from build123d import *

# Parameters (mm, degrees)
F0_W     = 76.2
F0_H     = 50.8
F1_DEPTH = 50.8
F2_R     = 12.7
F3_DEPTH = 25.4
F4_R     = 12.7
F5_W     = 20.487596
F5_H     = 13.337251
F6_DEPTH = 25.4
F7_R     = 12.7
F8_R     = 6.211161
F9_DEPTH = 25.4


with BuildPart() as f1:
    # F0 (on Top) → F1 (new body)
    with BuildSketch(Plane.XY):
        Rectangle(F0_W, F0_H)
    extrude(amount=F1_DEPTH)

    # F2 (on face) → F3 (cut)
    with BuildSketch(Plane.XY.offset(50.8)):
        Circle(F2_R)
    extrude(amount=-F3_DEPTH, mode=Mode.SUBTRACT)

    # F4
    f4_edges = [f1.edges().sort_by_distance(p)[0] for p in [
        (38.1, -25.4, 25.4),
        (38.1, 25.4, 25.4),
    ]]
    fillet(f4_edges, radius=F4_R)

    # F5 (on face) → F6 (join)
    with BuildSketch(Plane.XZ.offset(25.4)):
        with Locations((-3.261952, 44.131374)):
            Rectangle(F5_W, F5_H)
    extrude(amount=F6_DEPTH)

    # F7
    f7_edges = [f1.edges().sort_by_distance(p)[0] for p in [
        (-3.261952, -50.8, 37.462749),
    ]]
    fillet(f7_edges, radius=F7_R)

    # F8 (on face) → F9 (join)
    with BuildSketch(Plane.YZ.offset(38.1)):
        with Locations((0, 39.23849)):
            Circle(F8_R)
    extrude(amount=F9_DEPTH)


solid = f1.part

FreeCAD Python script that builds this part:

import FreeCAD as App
import Part
import Sketcher

V = App.Vector
Q = App.Units.Quantity


def edges_at(feature, points):
    """Names of the edges that pass closest to the given points."""
    edges = feature.Shape.Edges
    near = lambda p: min(range(len(edges)), key=lambda i: edges[i].distToShape(Part.Vertex(*p))[0])
    return sorted({f"Edge{near(p) + 1}" for p in points})

doc = App.newDocument("Part")
params = doc.addObject("Spreadsheet::Sheet", "Params")
for row, (alias, value) in enumerate([
    ("sketch1_width", "3 in"),
    ("sketch1_height", "2 in"),
    ("pad1_length", "2 in"),
    ("sketch2_diameter", "1 in"),
    ("pocket1_length", "1 in"),
    ("fillet_radius", "0.5 in"),
    ("pad2_length", "1 in"),
    ("fillet2_radius", "0.5 in"),
    ("pad3_length", "1 in"),
], start=1):
    params.set(f"A{row}", alias)
    params.set(f"B{row}", "=" + value)
    params.setAlias(f"B{row}", alias)

body = doc.addObject("PartDesign::Body", "Body")

# Sketch on XY plane
sketch1 = body.newObject("Sketcher::SketchObject", "Sketch")
sketch1.AttachmentSupport = (doc.getObject("XY_Plane"), [""])
sketch1.MapMode = "FlatFace"
sketch1.addGeometry([
    Part.LineSegment(V(-38, 25, 0), V(-38, -25, 0)),
    Part.LineSegment(V(-38, -25, 0), V(38, -25, 0)),
    Part.LineSegment(V(38, -25, 0), V(38, 25, 0)),
    Part.LineSegment(V(38, 25, 0), V(-38, 25, 0)),
], False)
sketch1.addConstraint([
    Sketcher.Constraint("Coincident", 0, 2, 1, 1),
    Sketcher.Constraint("Coincident", 1, 2, 2, 1),
    Sketcher.Constraint("Coincident", 2, 2, 3, 1),
    Sketcher.Constraint("Coincident", 3, 2, 0, 1),
    Sketcher.Constraint("Vertical", 0),
    Sketcher.Constraint("Horizontal", 1),
    Sketcher.Constraint("Vertical", 2),
    Sketcher.Constraint("Horizontal", 3),
    Sketcher.Constraint("Symmetric", 0, 2, 2, 2, -1, 1),
    Sketcher.Constraint("DistanceX", 1, 1, 1, 2, Q("3 in")),
    Sketcher.Constraint("DistanceY", 0, 2, 0, 1, Q("2 in")),
])
sketch1.setExpression("Constraints[9]", "Params.sketch1_width")
sketch1.setExpression("Constraints[10]", "Params.sketch1_height")
pad1 = body.newObject("PartDesign::Pad", "Pad")
pad1.Profile = sketch1
pad1.setExpression("Length", "Params.pad1_length")

# Sketch on XY plane
sketch2 = body.newObject("Sketcher::SketchObject", "Sketch001")
sketch2.AttachmentSupport = (doc.getObject("XY_Plane"), [""])
sketch2.MapMode = "FlatFace"
sketch2.AttachmentOffset = App.Placement(V(0, 0, 2 * 25.4), App.Rotation())
sketch2.addGeometry(Part.Circle(V(0, 0, 0), V(0, 0, 1), 13), False)
sketch2.addConstraint([
    Sketcher.Constraint("Coincident", 0, 3, -1, 1),
    Sketcher.Constraint("Diameter", 0, Q("1 in")),
])
sketch2.setExpression("Constraints[1]", "Params.sketch2_diameter")
pocket1 = body.newObject("PartDesign::Pocket", "Pocket")
pocket1.Profile = sketch2
pocket1.setExpression("Length", "Params.pocket1_length")
doc.recompute()

fillet = body.newObject("PartDesign::Fillet", "Fillet")
fillet.Base = (pocket1, edges_at(pocket1, [(38.1, -25.4, 25.4), (38.1, 25.4, 25.4)]))
fillet.setExpression("Radius", "Params.fillet_radius")

# Sketch on XZ plane
sketch3 = body.newObject("Sketcher::SketchObject", "Sketch002")
sketch3.AttachmentSupport = (doc.getObject("XZ_Plane"), [""])
sketch3.MapMode = "FlatFace"
sketch3.AttachmentOffset = App.Placement(V(0, 0, 1 * 25.4), App.Rotation())
sketch3.addGeometry([
    Part.LineSegment(V(-14, 51, 0), V(-14, 37, 0)),
    Part.LineSegment(V(-14, 37, 0), V(7, 37, 0)),
    Part.LineSegment(V(7, 37, 0), V(7, 51, 0)),
    Part.LineSegment(V(7, 51, 0), V(-14, 51, 0)),
], False)
sketch3.addConstraint([
    Sketcher.Constraint("Coincident", 0, 2, 1, 1),
    Sketcher.Constraint("Coincident", 1, 2, 2, 1),
    Sketcher.Constraint("Coincident", 2, 2, 3, 1),
    Sketcher.Constraint("Coincident", 3, 2, 0, 1),
    Sketcher.Constraint("Vertical", 0),
    Sketcher.Constraint("Horizontal", 1),
    Sketcher.Constraint("Vertical", 2),
    Sketcher.Constraint("Horizontal", 3),
    Sketcher.Constraint("DistanceY", -1, 1, 2, 2, Q("2 in")),
    Sketcher.Constraint("DistanceY", 0, 2, 0, 1, 13.337251),
    Sketcher.Constraint("DistanceX", 1, 1, 1, 2, 20.487596),
    Sketcher.Constraint("DistanceX", 0, 2, -1, 1, 13.50575),
])
pad2 = body.newObject("PartDesign::Pad", "Pad001")
pad2.Profile = sketch3
pad2.setExpression("Length", "Params.pad2_length")
doc.recompute()

fillet2 = body.newObject("PartDesign::Fillet", "Fillet001")
fillet2.Base = (pad2, edges_at(pad2, [(-3.262, -50.8, 37.463)]))
fillet2.setExpression("Radius", "Params.fillet2_radius")

# Sketch on YZ plane
sketch4 = body.newObject("Sketcher::SketchObject", "Sketch003")
sketch4.AttachmentSupport = (doc.getObject("YZ_Plane"), [""])
sketch4.MapMode = "FlatFace"
sketch4.AttachmentOffset = App.Placement(V(0, 0, 1.5 * 25.4), App.Rotation())
sketch4.addGeometry(Part.Circle(V(0, 39, 0), V(0, 0, 1), 6), False)
sketch4.addConstraint([
    Sketcher.Constraint("PointOnObject", 0, 3, -2),
    Sketcher.Constraint("Diameter", 0, 12.422322),
    Sketcher.Constraint("DistanceY", -1, 1, 0, 3, 39.23849),
])
pad3 = body.newObject("PartDesign::Pad", "Pad002")
pad3.Profile = sketch4
pad3.setExpression("Length", "Params.pad3_length")

doc.recompute()
